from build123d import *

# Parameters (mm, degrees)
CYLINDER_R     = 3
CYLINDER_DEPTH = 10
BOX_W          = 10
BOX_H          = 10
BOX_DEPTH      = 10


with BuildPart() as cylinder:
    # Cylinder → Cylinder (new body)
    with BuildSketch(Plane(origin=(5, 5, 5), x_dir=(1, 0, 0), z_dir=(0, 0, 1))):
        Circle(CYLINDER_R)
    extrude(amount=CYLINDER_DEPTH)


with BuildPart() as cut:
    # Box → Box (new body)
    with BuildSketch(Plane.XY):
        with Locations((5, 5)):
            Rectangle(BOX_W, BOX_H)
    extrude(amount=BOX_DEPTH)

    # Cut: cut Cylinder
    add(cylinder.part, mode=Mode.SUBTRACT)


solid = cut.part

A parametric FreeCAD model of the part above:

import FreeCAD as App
import Part
import Sketcher


def add_polygon(sketch, points):
    """Adds a closed chain of lines whose ends are joined by coincident constraints."""
    first, n = sketch.GeometryCount, len(points)
    for a, b in zip(points, points[1:] + points[:1]):
        sketch.addGeometry(Part.LineSegment(App.Vector(*a, 0), App.Vector(*b, 0)), False)
    for i in range(n):
        sketch.addConstraint(Sketcher.Constraint("Coincident", first + i, 2, first + (i + 1) % n, 1))

doc = App.newDocument("Part")
params = doc.addObject("Spreadsheet::Sheet", "Params")
for row, (alias, value) in enumerate([
    ("sketch1_diameter", "6 mm"),
    ("pad1_length", "10 mm"),
    ("sketch2_width", "10 mm"),
    ("pad2_length", "10 mm"),
], start=1):
    params.set(f"A{row}", alias)
    params.set(f"B{row}", "=" + value)
    params.setAlias(f"B{row}", alias)

body = doc.addObject("PartDesign::Body", "Body")

# Sketch on XY plane
sketch1 = doc.addObject("Sketcher::SketchObject", "Sketch")
body.addObject(sketch1)
sketch1.AttachmentSupport = (doc.XY_Plane, [""])
sketch1.MapMode = "FlatFace"
sketch1.AttachmentOffset = App.Placement(App.Vector(0, 0, 5), App.Rotation())
sketch1.addGeometry(Part.Circle(App.Vector(5, 5, 0), App.Vector(0, 0, 1), 3), False)
sketch1.addConstraint([
    Sketcher.Constraint("Diameter", 0, 6.0),
    Sketcher.Constraint("DistanceX", -1, 1, 0, 3, 5.0),
    Sketcher.Constraint("DistanceY", -1, 1, 0, 3, 5.0),
])
sketch1.setExpression("Constraints[0]", "Params.sketch1_diameter")
pad1 = doc.addObject("PartDesign::Pad", "Pad")
body.addObject(pad1)
pad1.Profile = sketch1
pad1.setExpression("Length", "Params.pad1_length")
body2 = doc.addObject("PartDesign::Body", "Body001")

# Sketch on XY plane
sketch2 = doc.addObject("Sketcher::SketchObject", "Sketch001")
body2.addObject(sketch2)
sketch2.AttachmentSupport = (doc.getObject("XY_Plane001"), [""])
sketch2.MapMode = "FlatFace"
add_polygon(sketch2, [(0, 10), (0, 0), (10, 0), (10, 10)])  # lines 0-3
sketch2.addConstraint([
    Sketcher.Constraint("Vertical", 0),
    Sketcher.Constraint("Horizontal", 1),
    Sketcher.Constraint("Vertical", 2),
    Sketcher.Constraint("Horizontal", 3),
    Sketcher.Constraint("Coincident", 0, 2, -1, 1),
    Sketcher.Constraint("Equal", 3, 0),
    Sketcher.Constraint("DistanceX", 1, 1, 1, 2, 10.0),
])
sketch2.setExpression("Constraints[10]", "Params.sketch2_width")
pad2 = doc.addObject("PartDesign::Pad", "Pad001")
body2.addObject(pad2)
pad2.Profile = sketch2
pad2.setExpression("Length", "Params.pad2_length")
doc.recompute()

boolean = doc.addObject("PartDesign::Boolean", "Boolean")
body2.addObject(boolean)
boolean.Type = "Cut"
boolean.addObjects([body])

doc.recompute()
